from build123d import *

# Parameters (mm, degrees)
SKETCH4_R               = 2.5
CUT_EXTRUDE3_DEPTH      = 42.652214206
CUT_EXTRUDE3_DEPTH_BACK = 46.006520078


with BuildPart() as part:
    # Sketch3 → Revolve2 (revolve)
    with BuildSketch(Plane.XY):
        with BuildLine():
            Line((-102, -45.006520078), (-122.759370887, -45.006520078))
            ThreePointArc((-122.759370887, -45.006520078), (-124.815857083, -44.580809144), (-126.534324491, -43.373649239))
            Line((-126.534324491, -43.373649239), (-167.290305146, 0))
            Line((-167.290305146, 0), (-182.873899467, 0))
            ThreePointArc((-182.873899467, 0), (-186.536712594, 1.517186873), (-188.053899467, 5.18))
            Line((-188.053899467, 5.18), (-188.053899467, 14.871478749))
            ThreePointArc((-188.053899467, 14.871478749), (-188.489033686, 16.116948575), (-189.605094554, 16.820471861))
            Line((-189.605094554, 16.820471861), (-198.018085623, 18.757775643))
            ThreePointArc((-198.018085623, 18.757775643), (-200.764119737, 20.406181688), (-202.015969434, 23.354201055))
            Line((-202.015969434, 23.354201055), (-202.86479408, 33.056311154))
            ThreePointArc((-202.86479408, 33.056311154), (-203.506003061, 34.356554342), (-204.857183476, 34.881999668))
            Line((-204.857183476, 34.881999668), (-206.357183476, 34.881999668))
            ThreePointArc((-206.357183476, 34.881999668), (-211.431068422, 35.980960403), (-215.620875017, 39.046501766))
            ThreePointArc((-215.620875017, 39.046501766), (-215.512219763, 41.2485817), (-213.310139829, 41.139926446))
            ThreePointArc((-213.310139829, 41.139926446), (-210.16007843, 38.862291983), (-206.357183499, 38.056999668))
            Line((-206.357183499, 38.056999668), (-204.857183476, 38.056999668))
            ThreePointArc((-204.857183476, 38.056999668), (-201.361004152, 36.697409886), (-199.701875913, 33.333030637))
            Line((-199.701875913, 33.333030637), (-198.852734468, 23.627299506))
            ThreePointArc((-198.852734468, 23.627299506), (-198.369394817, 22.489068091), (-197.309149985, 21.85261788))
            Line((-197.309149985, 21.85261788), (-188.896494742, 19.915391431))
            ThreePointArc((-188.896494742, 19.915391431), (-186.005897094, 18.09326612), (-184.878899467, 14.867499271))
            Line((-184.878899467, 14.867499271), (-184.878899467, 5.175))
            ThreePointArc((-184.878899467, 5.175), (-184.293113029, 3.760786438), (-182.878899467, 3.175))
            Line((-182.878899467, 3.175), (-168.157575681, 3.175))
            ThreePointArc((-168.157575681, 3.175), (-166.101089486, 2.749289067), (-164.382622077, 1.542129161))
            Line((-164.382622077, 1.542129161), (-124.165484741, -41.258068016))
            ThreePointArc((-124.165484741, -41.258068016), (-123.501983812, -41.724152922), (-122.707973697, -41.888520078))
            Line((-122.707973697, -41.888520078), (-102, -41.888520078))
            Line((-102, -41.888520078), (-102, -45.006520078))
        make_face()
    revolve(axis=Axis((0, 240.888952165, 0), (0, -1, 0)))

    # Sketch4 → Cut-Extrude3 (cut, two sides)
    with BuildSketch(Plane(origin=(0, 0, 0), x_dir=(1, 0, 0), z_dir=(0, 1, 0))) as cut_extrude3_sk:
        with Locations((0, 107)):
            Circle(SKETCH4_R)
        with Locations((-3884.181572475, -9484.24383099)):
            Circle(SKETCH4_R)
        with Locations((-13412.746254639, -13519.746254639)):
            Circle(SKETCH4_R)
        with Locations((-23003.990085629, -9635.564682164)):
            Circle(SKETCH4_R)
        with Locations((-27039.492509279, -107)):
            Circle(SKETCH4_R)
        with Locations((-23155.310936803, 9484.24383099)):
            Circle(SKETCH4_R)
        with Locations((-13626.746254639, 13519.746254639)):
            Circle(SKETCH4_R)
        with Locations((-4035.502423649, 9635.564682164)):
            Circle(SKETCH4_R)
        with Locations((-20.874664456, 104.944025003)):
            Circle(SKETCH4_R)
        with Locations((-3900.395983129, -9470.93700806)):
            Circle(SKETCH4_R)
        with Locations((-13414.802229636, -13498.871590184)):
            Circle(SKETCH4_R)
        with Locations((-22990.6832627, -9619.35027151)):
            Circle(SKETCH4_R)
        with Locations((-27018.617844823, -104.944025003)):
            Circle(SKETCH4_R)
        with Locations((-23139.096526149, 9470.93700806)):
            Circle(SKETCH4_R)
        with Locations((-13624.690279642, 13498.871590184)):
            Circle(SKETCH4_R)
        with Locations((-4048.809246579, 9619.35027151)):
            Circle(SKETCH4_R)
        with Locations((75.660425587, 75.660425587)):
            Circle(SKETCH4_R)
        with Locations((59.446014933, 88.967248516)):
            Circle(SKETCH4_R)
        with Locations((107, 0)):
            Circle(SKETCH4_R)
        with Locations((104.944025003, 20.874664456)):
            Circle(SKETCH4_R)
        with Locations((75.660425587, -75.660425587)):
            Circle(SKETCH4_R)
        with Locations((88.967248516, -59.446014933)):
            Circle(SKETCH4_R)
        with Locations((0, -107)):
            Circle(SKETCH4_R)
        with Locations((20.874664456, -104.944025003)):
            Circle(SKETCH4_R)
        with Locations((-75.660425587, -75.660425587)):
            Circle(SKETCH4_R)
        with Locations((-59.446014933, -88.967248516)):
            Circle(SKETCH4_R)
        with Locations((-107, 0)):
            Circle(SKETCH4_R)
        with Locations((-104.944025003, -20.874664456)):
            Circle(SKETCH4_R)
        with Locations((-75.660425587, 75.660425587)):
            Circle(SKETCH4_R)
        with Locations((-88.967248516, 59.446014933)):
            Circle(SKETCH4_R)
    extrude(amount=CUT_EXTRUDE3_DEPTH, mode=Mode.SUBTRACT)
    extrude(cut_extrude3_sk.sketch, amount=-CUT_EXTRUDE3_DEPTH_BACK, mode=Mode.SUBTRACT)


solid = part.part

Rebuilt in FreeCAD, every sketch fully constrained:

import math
import FreeCAD as App
import Part
import Sketcher
from FreeCAD import Vector
Q = App.Units.Quantity

doc = App.newDocument("Part")
params = doc.addObject("Spreadsheet::Sheet", "Params")
for row, (alias, value) in enumerate([
    ("sketch1_radius", "2 mm"),
    ("sketch1_radius2", "12.5 mm"),
    ("sketch1_radius3", "5.18 mm"),
    ("sketch1_width", "1.5 mm"),
    ("revolution_angle", "360 deg"),
    ("sketch2_diameter", "5 mm"),
], start=1):
    params.set(f"A{row}", alias)
    params.set(f"B{row}", "=" + value)
    params.setAlias(f"B{row}", alias)

body = doc.addObject("PartDesign::Body", "Body")

# Sketch on XY plane
sketch1 = body.newObject("Sketcher::SketchObject", "Sketch")
sketch1.AttachmentSupport = (doc.getObject("XY_Plane"), [""])
sketch1.MapMode = "FlatFace"
sketch1.addGeometry([
    Part.LineSegment(Vector(-122.8, -45, 0), Vector(-102, -45, 0)),  # 0
    Part.LineSegment(Vector(-102, -45, 0), Vector(-102, -41.9, 0)),  # 1
    Part.LineSegment(Vector(-102, -41.9, 0), Vector(-122.7, -41.9, 0)),  # 2
    Part.ArcOfCircle(Part.Circle(Vector(-122.7, -39.9, 0), Vector(0, 0, 1), 2), math.radians(-137), math.radians(-90)),  # 3
    Part.LineSegment(Vector(-124.2, -41.3, 0), Vector(-164.4, 1.5, 0)),  # 4
    Part.ArcOfCircle(Part.Circle(Vector(-168.2, -2, 0), Vector(0, 0, 1), 5.2), math.radians(43), math.radians(90)),  # 5
    Part.LineSegment(Vector(-168.2, 3.2, 0), Vector(-182.9, 3.2, 0)),  # 6
    Part.ArcOfCircle(Part.Circle(Vector(-182.9, 5.2, 0), Vector(0, 0, 1), 2), math.radians(-180), math.radians(-90)),  # 7
    Part.LineSegment(Vector(-184.9, 5.2, 0), Vector(-184.9, 14.9, 0)),  # 8
    Part.ArcOfCircle(Part.Circle(Vector(-190.1, 14.9, 0), Vector(0, 0, 1), 5.2), math.radians(0), math.radians(77)),  # 9
    Part.LineSegment(Vector(-188.9, 19.9, 0), Vector(-197.3, 21.9, 0)),  # 10
    Part.ArcOfCircle(Part.Circle(Vector(-196.9, 23.8, 0), Vector(0, 0, 1), 2), math.radians(-175), math.radians(-103)),  # 11
    Part.LineSegment(Vector(-198.9, 23.6, 0), Vector(-199.7, 33.3, 0)),  # 12
    Part.ArcOfCircle(Part.Circle(Vector(-204.9, 32.9, 0), Vector(0, 0, 1), 5.2), math.radians(5), math.radians(90)),  # 13
    Part.LineSegment(Vector(-204.9, 38.1, 0), Vector(-206.4, 38.1, 0)),  # 14
    Part.ArcOfCircle(Part.Circle(Vector(-206.4, 47.4, 0), Vector(0, 0, 1), 9.4), math.radians(-138), math.radians(-90)),  # 15
    Part.ArcOfCircle(Part.Circle(Vector(-214.5, 40.1, 0), Vector(0, 0, 1), 1.6), math.radians(42), math.radians(222)),  # 16
    Part.ArcOfCircle(Part.Circle(Vector(-206.3, 47.4, 0), Vector(0, 0, 1), 12.5), math.radians(-138), math.radians(-90)),  # 17
    Part.LineSegment(Vector(-206.4, 34.9, 0), Vector(-204.9, 34.9, 0)),  # 18
    Part.ArcOfCircle(Part.Circle(Vector(-204.9, 32.9, 0), Vector(0, 0, 1), 2), math.radians(5), math.radians(90)),  # 19
    Part.LineSegment(Vector(-202.9, 33.1, 0), Vector(-202, 23.4, 0)),  # 20
    Part.ArcOfCircle(Part.Circle(Vector(-196.9, 23.8, 0), Vector(0, 0, 1), 5.2), math.radians(-175), math.radians(-103)),  # 21
    Part.LineSegment(Vector(-198, 18.8, 0), Vector(-189.6, 16.8, 0)),  # 22
    Part.ArcOfCircle(Part.Circle(Vector(-190.1, 14.9, 0), Vector(0, 0, 1), 2), math.radians(0), math.radians(77)),  # 23
    Part.LineSegment(Vector(-188.1, 14.9, 0), Vector(-188.1, 5.2, 0)),  # 24
    Part.ArcOfCircle(Part.Circle(Vector(-182.9, 5.2, 0), Vector(0, 0, 1), 5.2), math.radians(180), math.radians(270)),  # 25
    Part.LineSegment(Vector(-182.9, 0, 0), Vector(-167.3, 0, 0)),  # 26
    Part.LineSegment(Vector(-167.3, 0, 0), Vector(-126.5, -43.4, 0)),  # 27
    Part.ArcOfCircle(Part.Circle(Vector(-122.8, -39.8, 0), Vector(0, 0, 1), 5.2), math.radians(-137), math.radians(-90)),  # 28
], False)
sketch1.addConstraint([
    Sketcher.Constraint("Coincident", 0, 2, 1, 1),
    Sketcher.Constraint("Coincident", 1, 2, 2, 1),
    Sketcher.Constraint("Tangent", 2, 2, 3, 2),
    Sketcher.Constraint("Tangent", 3, 1, 4, 1),
    Sketcher.Constraint("Tangent", 4, 2, 5, 1),
    Sketcher.Constraint("Tangent", 5, 2, 6, 1),
    Sketcher.Constraint("Tangent", 6, 2, 7, 2),
    Sketcher.Constraint("Tangent", 7, 1, 8, 1),
    Sketcher.Constraint("Tangent", 8, 2, 9, 1),
    Sketcher.Constraint("Tangent", 9, 2, 10, 1),
    Sketcher.Constraint("Tangent", 10, 2, 11, 2),
    Sketcher.Constraint("Tangent", 11, 1, 12, 1),
    Sketcher.Constraint("Tangent", 12, 2, 13, 1),
    Sketcher.Constraint("Tangent", 13, 2, 14, 1),
    Sketcher.Constraint("Tangent", 14, 2, 15, 2),
    Sketcher.Constraint("Tangent", 15, 1, 16, 1),
    Sketcher.Constraint("Coincident", 16, 2, 17, 1),
    Sketcher.Constraint("Coincident", 17, 2, 18, 1),
    Sketcher.Constraint("Tangent", 18, 2, 19, 2),
    Sketcher.Constraint("Tangent", 19, 1, 20, 1),
    Sketcher.Constraint("Tangent", 20, 2, 21, 1),
    Sketcher.Constraint("Tangent", 21, 2, 22, 1),
    Sketcher.Constraint("Tangent", 22, 2, 23, 2),
    Sketcher.Constraint("Tangent", 23, 1, 24, 1),
    Sketcher.Constraint("Tangent", 24, 2, 25, 1),
    Sketcher.Constraint("Tangent", 25, 2, 26, 1),
    Sketcher.Constraint("Coincident", 26, 2, 27, 1),
    Sketcher.Constraint("Tangent", 27, 2, 28, 1),
    Sketcher.Constraint("Tangent", 28, 2, 0, 1),
    Sketcher.Constraint("Horizontal", 0),
    Sketcher.Constraint("Vertical", 1),
    Sketcher.Constraint("Horizontal", 2),
    Sketcher.Constraint("Horizontal", 6),
    Sketcher.Constraint("Vertical", 8),
    Sketcher.Constraint("Horizontal", 14),
    Sketcher.Constraint("Horizontal", 18),
    Sketcher.Constraint("Vertical", 24),
    Sketcher.Constraint("Horizontal", 26),
    Sketcher.Constraint("Coincident", 19, 3, 13, 3),
    Sketcher.Constraint("Equal", 3, 7),
    Sketcher.Constraint("Equal", 5, 9),
    Sketcher.Constraint("Equal", 7, 11),
    Sketcher.Constraint("Equal", 11, 19),
    Sketcher.Constraint("Equal", 9, 21),
    Sketcher.Constraint("Equal", 19, 23),
    Sketcher.Constraint("Equal", 21, 25),
    Sketcher.Constraint("Equal", 25, 28),
    Sketcher.Constraint("PointOnObject", 25, 2, -1),
    Sketcher.Constraint("Parallel", 12, 20),
    Sketcher.Constraint("Parallel", 10, 22),
    Sketcher.Constraint("Parallel", 4, 27),
    Sketcher.Constraint("Vertical", 14, 2, 17, 2),
    Sketcher.Constraint("Radius", 3, Q("2 mm")),
    Sketcher.Constraint("Radius", 17, Q("12.5 mm")),
    Sketcher.Constraint("Angle", 12, Q("95 deg")),
    Sketcher.Constraint("Radius", 5, Q("5.18 mm")),
    Sketcher.Constraint("DistanceX", 14, 2, 14, 1, Q("1.5 mm")),
    Sketcher.Constraint("DistanceX", 0, 2, -1, 1, Q("102 mm")),
    Sketcher.Constraint("Radius", 13, Q("5.175 mm")),
    Sketcher.Constraint("Radius", 15, Q("9.382 mm")),
    Sketcher.Constraint("Radius", 16, Q("1.559 mm")),
    Sketcher.Constraint("DistanceY", 1, 1, 1, 2, Q("3.118 mm")),
    Sketcher.Constraint("DistanceY", 8, 1, 8, 2, Q("9.692499 mm")),
    Sketcher.Constraint("DistanceY", 5, 3, -1, 1, Q("2.005 mm")),
    Sketcher.Constraint("DistanceY", -1, 1, 13, 3, Q("32.882 mm")),
    Sketcher.Constraint("DistanceX", 9, 3, 23, 3, Q("0.005 mm")),
    Sketcher.Constraint("DistanceY", 28, 3, 23, 3, Q("54.697999 mm")),
    Sketcher.Constraint("DistanceX", 0, 1, 0, 2, Q("20.759371 mm")),
    Sketcher.Constraint("DistanceY", 24, 2, 24, 1, Q("9.691479 mm")),
    Sketcher.Constraint("DistanceX", 7, 3, -1, 1, Q("182.878899 mm")),
    Sketcher.Constraint("DistanceY", -1, 1, 11, 1, Q("23.6273 mm")),
    Sketcher.Constraint("DistanceY", -1, 1, 16, 2, Q("39.046502 mm")),
    Sketcher.Constraint("DistanceX", 5, 3, 3, 3, Q("45.449602 mm")),
    Sketcher.Constraint("DistanceX", 22, 2, 9, 2, Q("0.7086 mm")),
    Sketcher.Constraint("DistanceX", 2, 2, 2, 1, Q("20.707974 mm")),
    Sketcher.Constraint("DistanceX", 15, 1, -1, 1, Q("213.31014 mm")),
])
sketch1.setExpression("Constraints[52]", "Params.sketch1_radius")
sketch1.setExpression("Constraints[53]", "Params.sketch1_radius2")
sketch1.setExpression("Constraints[55]", "Params.sketch1_radius3")
sketch1.setExpression("Constraints[56]", "Params.sketch1_width")
revolution = body.newObject("PartDesign::Revolution", "Revolution")
revolution.Profile = sketch1
revolution.ReferenceAxis = (sketch1, ["V_Axis"])
revolution.setExpression("Angle", "Params.revolution_angle")

# Sketch on XZ plane
sketch2 = body.newObject("Sketcher::SketchObject", "Sketch001")
sketch2.AttachmentSupport = (doc.getObject("XZ_Plane"), [""])
sketch2.MapMode = "FlatFace"
sketch2.addGeometry([
    Part.Circle(Vector(0, -107, 0), Vector(0, 0, 1), 2.5),  # 0
    Part.Circle(Vector(-3884.2, 9484.2, 0), Vector(0, 0, 1), 2.5),  # 1
    Part.Circle(Vector(-13412.7, 13519.7, 0), Vector(0, 0, 1), 2.5),  # 2
    Part.Circle(Vector(-23004, 9635.6, 0), Vector(0, 0, 1), 2.5),  # 3
    Part.Circle(Vector(-27039.5, 107, 0), Vector(0, 0, 1), 2.5),  # 4
    Part.Circle(Vector(-23155.3, -9484.2, 0), Vector(0, 0, 1), 2.5),  # 5
    Part.Circle(Vector(-13626.7, -13519.7, 0), Vector(0, 0, 1), 2.5),  # 6
    Part.Circle(Vector(-4035.5, -9635.6, 0), Vector(0, 0, 1), 2.5),  # 7
    Part.Circle(Vector(-20.9, -104.9, 0), Vector(0, 0, 1), 2.5),  # 8
    Part.Circle(Vector(-3900.4, 9470.9, 0), Vector(0, 0, 1), 2.5),  # 9
    Part.Circle(Vector(-13414.8, 13498.9, 0), Vector(0, 0, 1), 2.5),  # 10
    Part.Circle(Vector(-22990.7, 9619.4, 0), Vector(0, 0, 1), 2.5),  # 11
    Part.Circle(Vector(-27018.6, 104.9, 0), Vector(0, 0, 1), 2.5),  # 12
    Part.Circle(Vector(-23139.1, -9470.9, 0), Vector(0, 0, 1), 2.5),  # 13
    Part.Circle(Vector(-13624.7, -13498.9, 0), Vector(0, 0, 1), 2.5),  # 14
    Part.Circle(Vector(-4048.8, -9619.4, 0), Vector(0, 0, 1), 2.5),  # 15
    Part.Circle(Vector(75.7, -75.7, 0), Vector(0, 0, 1), 2.5),  # 16
    Part.Circle(Vector(59.4, -89, 0), Vector(0, 0, 1), 2.5),  # 17
    Part.Circle(Vector(107, 0, 0), Vector(0, 0, 1), 2.5),  # 18
    Part.Circle(Vector(104.9, -20.9, 0), Vector(0, 0, 1), 2.5),  # 19
    Part.Circle(Vector(75.7, 75.7, 0), Vector(0, 0, 1), 2.5),  # 20
    Part.Circle(Vector(89, 59.4, 0), Vector(0, 0, 1), 2.5),  # 21
    Part.Circle(Vector(0, 107, 0), Vector(0, 0, 1), 2.5),  # 22
    Part.Circle(Vector(20.9, 104.9, 0), Vector(0, 0, 1), 2.5),  # 23
    Part.Circle(Vector(-75.7, 75.7, 0), Vector(0, 0, 1), 2.5),  # 24
    Part.Circle(Vector(-59.4, 89, 0), Vector(0, 0, 1), 2.5),  # 25
    Part.Circle(Vector(-107, 0, 0), Vector(0, 0, 1), 2.5),  # 26
    Part.Circle(Vector(-104.9, 20.9, 0), Vector(0, 0, 1), 2.5),  # 27
    Part.Circle(Vector(-75.7, -75.7, 0), Vector(0, 0, 1), 2.5),  # 28
    Part.Circle(Vector(-89, -59.4, 0), Vector(0, 0, 1), 2.5),  # 29
], False)
sketch2.addConstraint([
    Sketcher.Constraint("Equal", 0, 1),
    Sketcher.Constraint("Equal", 1, 2),
    Sketcher.Constraint("Equal", 2, 3),
    Sketcher.Constraint("Equal", 3, 4),
    Sketcher.Constraint("Equal", 4, 5),
    Sketcher.Constraint("Equal", 5, 6),
    Sketcher.Constraint("Equal", 6, 7),
    Sketcher.Constraint("Equal", 7, 8),
    Sketcher.Constraint("Equal", 8, 9),
    Sketcher.Constraint("Equal", 9, 10),
    Sketcher.Constraint("Equal", 10, 11),
    Sketcher.Constraint("Equal", 11, 12),
    Sketcher.Constraint("Equal", 12, 13),
    Sketcher.Constraint("Equal", 13, 14),
    Sketcher.Constraint("Equal", 14, 15),
    Sketcher.Constraint("Equal", 15, 16),
    Sketcher.Constraint("Equal", 16, 17),
    Sketcher.Constraint("Equal", 17, 18),
    Sketcher.Constraint("Equal", 18, 19),
    Sketcher.Constraint("Equal", 19, 20),
    Sketcher.Constraint("Equal", 20, 21),
    Sketcher.Constraint("Equal", 21, 22),
    Sketcher.Constraint("Equal", 22, 23),
    Sketcher.Constraint("Equal", 23, 24),
    Sketcher.Constraint("Equal", 24, 25),
    Sketcher.Constraint("Equal", 25, 26),
    Sketcher.Constraint("Equal", 26, 27),
    Sketcher.Constraint("Equal", 27, 28),
    Sketcher.Constraint("Equal", 28, 29),
    Sketcher.Constraint("Symmetric", 0, 3, 22, 3, -1, 1),
    Sketcher.Constraint("Symmetric", 8, 3, 23, 3, -1, 1),
    Sketcher.Constraint("Symmetric", 16, 3, 24, 3, -1, 1),
    Sketcher.Constraint("Symmetric", 17, 3, 25, 3, -1, 1),
    Sketcher.Constraint("Symmetric", 18, 3, 26, 3, -1, 1),
    Sketcher.Constraint("Symmetric", 19, 3, 27, 3, -1, 1),
    Sketcher.Constraint("Symmetric", 20, 3, 28, 3, -1, 1),
    Sketcher.Constraint("Symmetric", 21, 3, 29, 3, -1, 1),
    Sketcher.Constraint("Symmetric", 20, 3, 24, 3, -2),
    Sketcher.Constraint("PointOnObject", 0, 3, -2),
    Sketcher.Constraint("PointOnObject", 18, 3, -1),
    Sketcher.Constraint("Horizontal", 4, 3, 22, 3),
    Sketcher.Constraint("Horizontal", 12, 3, 23, 3),
    Sketcher.Constraint("Diameter", 0, Q("5 mm")),
    Sketcher.Constraint("DistanceY", 0, 3, -1, 1, Q("107 mm")),
    Sketcher.Constraint("DistanceX", -1, 1, 18, 3, Q("107 mm")),
    Sketcher.Constraint("DistanceX", 1, 3, 16, 3, Q("3959.841998 mm")),
    Sketcher.Constraint("DistanceX", 9, 3, 17, 3, Q("3959.841998 mm")),
    Sketcher.Constraint("DistanceY", 8, 3, 16, 3, Q("29.283599 mm")),
    Sketcher.Constraint("DistanceX", 16, 3, 19, 3, Q("29.283599 mm")),
    Sketcher.Constraint("DistanceY", -1, 1, 1, 3, Q("9484.243831 mm")),
    Sketcher.Constraint("DistanceX", 4, 3, -1, 1, Q("27039.492509 mm")),
    Sketcher.Constraint("DistanceY", 5, 3, -1, 1, Q("9484.243831 mm")),
    Sketcher.Constraint("DistanceY", -1, 1, 9, 3, Q("9470.937008 mm")),
    Sketcher.Constraint("DistanceX", 10, 3, -1, 1, Q("13414.80223 mm")),
    Sketcher.Constraint("DistanceY", -1, 1, 10, 3, Q("13498.87159 mm")),
    Sketcher.Constraint("DistanceY", -1, 1, 11, 3, Q("9619.350272 mm")),
    Sketcher.Constraint("DistanceY", 13, 3, -1, 1, Q("9470.937008 mm")),
    Sketcher.Constraint("DistanceX", 14, 3, -1, 1, Q("13624.69028 mm")),
    Sketcher.Constraint("DistanceY", 14, 3, -1, 1, Q("13498.87159 mm")),
    Sketcher.Constraint("DistanceY", 15, 3, -1, 1, Q("9619.350272 mm")),
    Sketcher.Constraint("DistanceY", 17, 3, -1, 1, Q("88.967249 mm")),
    Sketcher.Constraint("DistanceX", -1, 1, 21, 3, Q("88.967249 mm")),
    Sketcher.Constraint("DistanceX", 3, 3, 2, 3, Q("9591.243831 mm")),
    Sketcher.Constraint("DistanceY", 1, 3, 3, 3, Q("151.320851 mm")),
    Sketcher.Constraint("DistanceX", 5, 3, 3, 3, Q("151.320851 mm")),
    Sketcher.Constraint("DistanceX", 3, 3, 6, 3, Q("9377.243831 mm")),
    Sketcher.Constraint("DistanceX", 6, 3, 7, 3, Q("9591.243831 mm")),
    Sketcher.Constraint("DistanceX", 7, 3, 1, 3, Q("151.320851 mm")),
    Sketcher.Constraint("DistanceY", 7, 3, 5, 3, Q("151.320851 mm")),
    Sketcher.Constraint("DistanceX", 1, 3, 8, 3, Q("3863.306908 mm")),
    Sketcher.Constraint("DistanceY", 8, 3, 2, 3, Q("13624.69028 mm")),
    Sketcher.Constraint("DistanceY", 6, 3, 8, 3, Q("13414.80223 mm")),
    Sketcher.Constraint("DistanceX", 9, 3, 1, 3, Q("16.214411 mm")),
    Sketcher.Constraint("DistanceX", 11, 3, 2, 3, Q("9577.937008 mm")),
    Sketcher.Constraint("DistanceX", 12, 3, 5, 3, Q("3863.306908 mm")),
    Sketcher.Constraint("DistanceX", 5, 3, 13, 3, Q("16.214411 mm")),
    Sketcher.Constraint("DistanceX", 6, 3, 15, 3, Q("9577.937008 mm")),
    Sketcher.Constraint("DistanceY", 16, 3, 19, 3, Q("54.785761 mm")),
    Sketcher.Constraint("DistanceY", 19, 3, 20, 3, Q("96.53509 mm")),
    Sketcher.Constraint("DistanceY", 21, 3, 20, 3, Q("16.214411 mm")),
    Sketcher.Constraint("DistanceX", 23, 3, 20, 3, Q("54.785761 mm")),
])
sketch2.setExpression("Constraints[42]", "Params.sketch2_diameter")
pocket1 = body.newObject("PartDesign::Pocket", "Pocket")
pocket1.Profile = sketch2
pocket1.Type = "ThroughAll"
pocket1.Midplane = True

doc.recompute()
